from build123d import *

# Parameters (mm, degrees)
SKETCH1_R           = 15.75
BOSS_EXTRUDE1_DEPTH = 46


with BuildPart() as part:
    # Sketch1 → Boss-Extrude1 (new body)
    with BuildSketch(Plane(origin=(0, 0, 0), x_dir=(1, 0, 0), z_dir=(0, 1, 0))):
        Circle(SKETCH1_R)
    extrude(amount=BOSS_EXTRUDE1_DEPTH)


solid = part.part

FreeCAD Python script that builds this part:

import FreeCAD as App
import Part
import Sketcher

V = App.Vector
Q = App.Units.Quantity

doc = App.newDocument("Part")
body = doc.addObject("PartDesign::Body", "Body")

sketch1 = body.newObject("Sketcher::SketchObject", "Sketch")
sketch1.AttachmentSupport = (doc.getObject("XZ_Plane"), [""])
sketch1.MapMode = "FlatFace"
sketch1.addGeometry(Part.Circle(V(0, 0, 0), V(0, 0, 1), 16), False)
sketch1.addConstraint([
    Sketcher.Constraint("Coincident", 0, 3, -1, 1),
    Sketcher.Constraint("Diameter", 0, Q("31.5 mm")),
])
pad1 = body.newObject("PartDesign::Pad", "Pad")
pad1.Profile = sketch1
pad1.Length = 46
pad1.Reversed = True

doc.recompute()
